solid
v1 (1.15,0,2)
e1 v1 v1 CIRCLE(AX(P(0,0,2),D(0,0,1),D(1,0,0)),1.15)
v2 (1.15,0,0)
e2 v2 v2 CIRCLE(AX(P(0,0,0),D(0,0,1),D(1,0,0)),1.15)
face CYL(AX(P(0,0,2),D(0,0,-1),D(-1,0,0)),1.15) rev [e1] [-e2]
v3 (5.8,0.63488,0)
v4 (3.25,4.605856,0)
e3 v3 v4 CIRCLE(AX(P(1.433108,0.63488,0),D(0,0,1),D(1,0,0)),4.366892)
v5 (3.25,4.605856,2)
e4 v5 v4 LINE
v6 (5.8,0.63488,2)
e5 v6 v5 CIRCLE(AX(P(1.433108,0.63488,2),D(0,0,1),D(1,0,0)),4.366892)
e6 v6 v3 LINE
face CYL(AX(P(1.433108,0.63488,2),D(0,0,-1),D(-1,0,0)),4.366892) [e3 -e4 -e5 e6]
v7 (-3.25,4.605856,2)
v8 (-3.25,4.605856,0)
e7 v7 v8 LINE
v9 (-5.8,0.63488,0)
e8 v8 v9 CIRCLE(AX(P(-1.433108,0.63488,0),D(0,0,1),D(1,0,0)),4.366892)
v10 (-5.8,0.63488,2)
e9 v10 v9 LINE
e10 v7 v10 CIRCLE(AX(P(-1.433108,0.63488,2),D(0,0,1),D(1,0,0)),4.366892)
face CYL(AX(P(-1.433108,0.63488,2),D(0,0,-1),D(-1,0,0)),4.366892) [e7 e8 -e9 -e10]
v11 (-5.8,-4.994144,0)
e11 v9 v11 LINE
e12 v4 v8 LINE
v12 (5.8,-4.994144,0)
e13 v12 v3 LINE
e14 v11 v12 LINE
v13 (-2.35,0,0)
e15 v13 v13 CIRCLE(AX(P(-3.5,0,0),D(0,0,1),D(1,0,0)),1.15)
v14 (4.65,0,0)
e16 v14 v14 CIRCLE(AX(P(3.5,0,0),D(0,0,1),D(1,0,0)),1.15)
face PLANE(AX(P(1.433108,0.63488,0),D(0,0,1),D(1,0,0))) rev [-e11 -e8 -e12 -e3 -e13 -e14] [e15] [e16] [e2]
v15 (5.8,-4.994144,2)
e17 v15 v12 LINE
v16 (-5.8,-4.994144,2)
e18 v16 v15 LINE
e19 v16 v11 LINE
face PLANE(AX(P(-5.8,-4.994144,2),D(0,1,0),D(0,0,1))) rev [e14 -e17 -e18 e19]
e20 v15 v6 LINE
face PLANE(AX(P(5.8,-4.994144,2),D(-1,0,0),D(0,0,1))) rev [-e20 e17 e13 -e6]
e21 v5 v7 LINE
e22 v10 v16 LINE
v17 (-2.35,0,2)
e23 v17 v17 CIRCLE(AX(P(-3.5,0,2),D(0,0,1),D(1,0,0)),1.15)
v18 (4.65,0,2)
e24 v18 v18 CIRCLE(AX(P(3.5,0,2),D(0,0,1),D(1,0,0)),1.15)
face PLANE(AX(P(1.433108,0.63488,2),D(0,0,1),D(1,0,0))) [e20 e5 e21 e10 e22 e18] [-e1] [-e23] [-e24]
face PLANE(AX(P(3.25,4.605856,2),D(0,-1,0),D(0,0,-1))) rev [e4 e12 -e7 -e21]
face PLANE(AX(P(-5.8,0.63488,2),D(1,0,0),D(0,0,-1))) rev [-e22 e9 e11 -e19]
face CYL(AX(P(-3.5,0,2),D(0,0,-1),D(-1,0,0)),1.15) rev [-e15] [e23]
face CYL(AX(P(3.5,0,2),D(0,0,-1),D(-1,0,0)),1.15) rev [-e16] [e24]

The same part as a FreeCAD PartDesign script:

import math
import FreeCAD as App
import Part
import Sketcher
from FreeCAD import Vector
Q = App.Units.Quantity

doc = App.newDocument("Part")
body = doc.addObject("PartDesign::Body", "Body")

# Sketch on XY plane
sketch1 = doc.addObject("Sketcher::SketchObject", "Sketch")
body.addObject(sketch1)
sketch1.AttachmentSupport = (doc.XY_Plane, [""])
sketch1.MapMode = "FlatFace"
sketch1.addGeometry([
    Part.LineSegment(Vector(-5.8, -5, 0), Vector(5.8, -5, 0)),  # 0
    Part.LineSegment(Vector(5.8, -5, 0), Vector(5.8, 0.6, 0)),  # 1
    Part.ArcOfCircle(Part.Circle(Vector(1.4, 0.6, 0), Vector(0, 0, 1), 4.4), math.radians(0), math.radians(65)),  # 2
    Part.LineSegment(Vector(3.2, 4.6, 0), Vector(-3.2, 4.6, 0)),  # 3
    Part.ArcOfCircle(Part.Circle(Vector(-1.4, 0.6, 0), Vector(0, 0, 1), 4.4), math.radians(115), math.radians(180)),  # 4
    Part.LineSegment(Vector(-5.8, 0.6, 0), Vector(-5.8, -5, 0)),  # 5
    Part.Circle(Vector(-3.5, 0, 0), Vector(0, 0, 1), 1.1),  # 6
    Part.Circle(Vector(0, 0, 0), Vector(0, 0, 1), 1.1),  # 7
    Part.Circle(Vector(3.5, 0, 0), Vector(0, 0, 1), 1.1),  # 8
], False)
sketch1.addConstraint([
    Sketcher.Constraint("Coincident", 0, 2, 1, 1),
    Sketcher.Constraint("Tangent", 1, 2, 2, 1),
    Sketcher.Constraint("Coincident", 2, 2, 3, 1),
    Sketcher.Constraint("Coincident", 3, 2, 4, 1),
    Sketcher.Constraint("Tangent", 4, 2, 5, 1),
    Sketcher.Constraint("Coincident", 5, 2, 0, 1),
    Sketcher.Constraint("Horizontal", 0),
    Sketcher.Constraint("Vertical", 1),
    Sketcher.Constraint("Horizontal", 3),
    Sketcher.Constraint("Vertical", 5),
    Sketcher.Constraint("Coincident", 7, 3, -1, 1),
    Sketcher.Constraint("Equal", 2, 4),
    Sketcher.Constraint("Equal", 6, 7),
    Sketcher.Constraint("Equal", 7, 8),
    Sketcher.Constraint("Symmetric", 6, 3, 8, 3, -1, 1),
    Sketcher.Constraint("Symmetric", 2, 3, 4, 3, -2),
    Sketcher.Constraint("PointOnObject", 6, 3, -1),
    Sketcher.Constraint("Diameter", 6, Q("2.3 mm")),
    Sketcher.Constraint("DistanceX", 0, 1, 0, 2, Q("11.6 mm")),
    Sketcher.Constraint("DistanceX", 3, 2, 3, 1, Q("6.5 mm")),
    Sketcher.Constraint("DistanceX", 6, 3, 8, 3, Q("7 mm")),
    Sketcher.Constraint("Radius", 2, Q("4.366892 mm")),
    Sketcher.Constraint("DistanceY", 1, 1, 1, 2, Q("5.629024 mm")),
    Sketcher.Constraint("DistanceY", -1, 1, 2, 3, Q("0.63488 mm")),
])
pad1 = doc.addObject("PartDesign::Pad", "Pad")
body.addObject(pad1)
pad1.Profile = sketch1
pad1.Length = 2

doc.recompute()
